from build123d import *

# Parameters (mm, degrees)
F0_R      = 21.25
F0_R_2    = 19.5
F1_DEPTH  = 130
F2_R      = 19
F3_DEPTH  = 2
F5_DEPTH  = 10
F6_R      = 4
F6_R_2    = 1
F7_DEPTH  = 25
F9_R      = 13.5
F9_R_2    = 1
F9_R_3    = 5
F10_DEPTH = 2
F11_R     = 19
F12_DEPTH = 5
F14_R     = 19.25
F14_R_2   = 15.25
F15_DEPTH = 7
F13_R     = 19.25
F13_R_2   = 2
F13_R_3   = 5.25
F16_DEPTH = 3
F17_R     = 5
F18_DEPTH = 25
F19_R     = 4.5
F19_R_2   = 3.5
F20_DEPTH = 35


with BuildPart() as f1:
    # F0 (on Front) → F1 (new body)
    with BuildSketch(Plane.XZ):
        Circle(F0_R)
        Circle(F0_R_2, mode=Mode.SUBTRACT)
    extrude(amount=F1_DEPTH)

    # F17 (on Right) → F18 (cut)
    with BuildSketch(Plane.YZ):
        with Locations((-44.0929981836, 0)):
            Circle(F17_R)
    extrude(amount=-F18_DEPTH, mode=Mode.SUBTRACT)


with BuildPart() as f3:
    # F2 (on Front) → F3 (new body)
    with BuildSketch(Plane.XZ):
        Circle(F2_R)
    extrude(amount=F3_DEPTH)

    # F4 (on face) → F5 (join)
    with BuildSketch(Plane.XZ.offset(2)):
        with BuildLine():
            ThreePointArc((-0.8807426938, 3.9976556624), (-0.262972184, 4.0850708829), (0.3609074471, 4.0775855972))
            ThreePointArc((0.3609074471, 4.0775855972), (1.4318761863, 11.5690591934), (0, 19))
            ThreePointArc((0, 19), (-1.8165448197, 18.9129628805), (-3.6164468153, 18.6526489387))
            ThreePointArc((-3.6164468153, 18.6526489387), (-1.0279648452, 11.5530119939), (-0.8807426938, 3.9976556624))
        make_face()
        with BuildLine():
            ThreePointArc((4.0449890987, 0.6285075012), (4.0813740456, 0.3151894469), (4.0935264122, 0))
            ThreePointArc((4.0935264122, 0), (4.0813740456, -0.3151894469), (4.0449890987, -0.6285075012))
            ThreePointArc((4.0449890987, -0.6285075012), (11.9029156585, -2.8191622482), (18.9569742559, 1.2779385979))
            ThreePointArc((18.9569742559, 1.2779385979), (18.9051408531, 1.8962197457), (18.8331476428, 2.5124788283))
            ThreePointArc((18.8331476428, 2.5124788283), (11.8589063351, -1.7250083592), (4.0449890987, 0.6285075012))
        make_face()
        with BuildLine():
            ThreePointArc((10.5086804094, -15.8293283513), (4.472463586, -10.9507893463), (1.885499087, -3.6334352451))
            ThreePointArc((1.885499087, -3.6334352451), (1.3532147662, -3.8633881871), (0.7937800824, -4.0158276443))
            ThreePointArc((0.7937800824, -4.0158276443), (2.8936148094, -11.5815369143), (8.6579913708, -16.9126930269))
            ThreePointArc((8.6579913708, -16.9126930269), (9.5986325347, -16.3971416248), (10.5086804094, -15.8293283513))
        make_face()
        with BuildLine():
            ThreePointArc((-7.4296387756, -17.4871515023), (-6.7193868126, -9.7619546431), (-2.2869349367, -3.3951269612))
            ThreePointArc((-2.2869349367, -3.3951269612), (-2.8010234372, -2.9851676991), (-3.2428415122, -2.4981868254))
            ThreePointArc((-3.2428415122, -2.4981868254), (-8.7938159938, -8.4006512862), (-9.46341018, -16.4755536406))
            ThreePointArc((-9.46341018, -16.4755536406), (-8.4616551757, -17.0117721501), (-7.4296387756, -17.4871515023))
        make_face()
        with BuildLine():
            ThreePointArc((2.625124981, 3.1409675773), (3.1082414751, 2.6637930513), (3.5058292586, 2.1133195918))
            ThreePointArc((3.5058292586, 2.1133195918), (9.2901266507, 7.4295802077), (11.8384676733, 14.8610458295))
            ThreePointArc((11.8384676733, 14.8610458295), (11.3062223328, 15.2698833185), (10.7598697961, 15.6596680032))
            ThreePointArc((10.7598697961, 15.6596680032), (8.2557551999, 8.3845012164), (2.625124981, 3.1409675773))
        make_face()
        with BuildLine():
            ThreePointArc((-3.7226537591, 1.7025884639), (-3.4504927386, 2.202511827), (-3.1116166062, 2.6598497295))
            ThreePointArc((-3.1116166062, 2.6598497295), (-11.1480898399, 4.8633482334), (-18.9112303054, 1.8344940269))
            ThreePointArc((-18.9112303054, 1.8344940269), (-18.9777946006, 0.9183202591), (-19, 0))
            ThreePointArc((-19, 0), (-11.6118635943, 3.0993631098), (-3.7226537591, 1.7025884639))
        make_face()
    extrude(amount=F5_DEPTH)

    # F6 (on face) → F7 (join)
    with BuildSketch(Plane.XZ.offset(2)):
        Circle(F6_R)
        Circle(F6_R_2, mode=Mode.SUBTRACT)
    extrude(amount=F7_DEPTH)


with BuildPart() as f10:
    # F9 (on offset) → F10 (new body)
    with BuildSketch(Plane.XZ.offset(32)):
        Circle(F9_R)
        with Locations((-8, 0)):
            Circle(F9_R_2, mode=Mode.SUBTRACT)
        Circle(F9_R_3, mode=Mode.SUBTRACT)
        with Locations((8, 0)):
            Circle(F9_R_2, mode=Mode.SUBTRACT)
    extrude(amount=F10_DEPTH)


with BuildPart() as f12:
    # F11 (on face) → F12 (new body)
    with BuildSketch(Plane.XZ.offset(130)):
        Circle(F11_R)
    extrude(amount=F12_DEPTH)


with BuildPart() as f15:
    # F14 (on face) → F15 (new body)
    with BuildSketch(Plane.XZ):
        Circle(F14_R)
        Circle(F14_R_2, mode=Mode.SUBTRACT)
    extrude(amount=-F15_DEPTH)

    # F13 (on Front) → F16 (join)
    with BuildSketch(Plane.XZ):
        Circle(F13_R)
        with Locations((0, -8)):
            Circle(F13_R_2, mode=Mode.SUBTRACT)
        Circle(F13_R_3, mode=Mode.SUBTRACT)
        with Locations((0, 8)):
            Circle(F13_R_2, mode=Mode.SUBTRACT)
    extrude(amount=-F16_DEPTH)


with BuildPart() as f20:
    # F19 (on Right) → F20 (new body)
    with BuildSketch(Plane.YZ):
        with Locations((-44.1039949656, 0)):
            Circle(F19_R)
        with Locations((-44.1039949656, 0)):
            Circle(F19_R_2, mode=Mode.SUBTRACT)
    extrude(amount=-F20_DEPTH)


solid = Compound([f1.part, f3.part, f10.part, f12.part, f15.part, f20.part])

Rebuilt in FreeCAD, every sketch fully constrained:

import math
import FreeCAD as App
import Part
import Sketcher

V = App.Vector
Q = App.Units.Quantity

doc = App.newDocument("Part")
params = doc.addObject("Spreadsheet::Sheet", "Params")
for row, (alias, value) in enumerate([
    ("sketch1_diameter", "39 mm"),
    ("sketch1_diameter2", "42.5 mm"),
    ("pad1_length", "130 mm"),
    ("sketch2_diameter", "10 mm"),
    ("pocket1_length", "25 mm"),
    ("sketch3_diameter", "38 mm"),
    ("pad2_length", "2 mm"),
    ("sketch4_radius", "19 mm"),
    ("pad3_length", "10 mm"),
    ("sketch5_diameter", "8 mm"),
    ("sketch5_diameter2", "2 mm"),
    ("pad4_length", "25 mm"),
    ("sketch6_diameter", "27 mm"),
    ("sketch6_diameter2", "2 mm"),
    ("sketch6_diameter3", "10 mm"),
    ("pad5_length", "2 mm"),
    ("sketch7_diameter", "38 mm"),
    ("pad6_length", "5 mm"),
    ("sketch8_diameter", "38.5 mm"),
    ("sketch8_diameter2", "30.5 mm"),
    ("pad7_length", "7 mm"),
    ("sketch9_diameter", "4 mm"),
    ("sketch9_diameter2", "38.5 mm"),
    ("sketch9_diameter3", "10.5 mm"),
    ("pad8_length", "3 mm"),
    ("sketch10_diameter", "9 mm"),
    ("sketch10_diameter2", "7 mm"),
    ("pad9_length", "35 mm"),
], start=1):
    params.set(f"A{row}", alias)
    params.set(f"B{row}", "=" + value)
    params.setAlias(f"B{row}", alias)

body = doc.addObject("PartDesign::Body", "Body")

sketch1 = body.newObject("Sketcher::SketchObject", "Sketch")
sketch1.AttachmentSupport = (doc.getObject("XZ_Plane"), [""])
sketch1.MapMode = "FlatFace"
sketch1.addGeometry([
    Part.Circle(V(0, 0, 0), V(0, 0, 1), 21),
    Part.Circle(V(0, 0, 0), V(0, 0, 1), 20),
], False)
sketch1.addConstraint([
    Sketcher.Constraint("Coincident", 0, 3, -1, 1),
    Sketcher.Constraint("Coincident", 1, 3, -1, 1),
    Sketcher.Constraint("Diameter", 1, Q("39 mm")),
    Sketcher.Constraint("Diameter", 0, Q("42.5 mm")),
])
sketch1.setExpression("Constraints[2]", "Params.sketch1_diameter")
sketch1.setExpression("Constraints[3]", "Params.sketch1_diameter2")
pad1 = body.newObject("PartDesign::Pad", "Pad")
pad1.Profile = sketch1
pad1.setExpression("Length", "Params.pad1_length")

sketch2 = body.newObject("Sketcher::SketchObject", "Sketch001")
sketch2.AttachmentSupport = (doc.getObject("YZ_Plane"), [""])
sketch2.MapMode = "FlatFace"
sketch2.addGeometry(Part.Circle(V(-44, 0, 0), V(0, 0, 1), 5), False)
sketch2.addConstraint([
    Sketcher.Constraint("PointOnObject", 0, 3, -1),
    Sketcher.Constraint("Diameter", 0, Q("10 mm")),
    Sketcher.Constraint("DistanceX", 0, 3, -1, 1, Q("44.092998 mm")),
])
sketch2.setExpression("Constraints[1]", "Params.sketch2_diameter")
pocket1 = body.newObject("PartDesign::Pocket", "Pocket")
pocket1.Profile = sketch2
pocket1.setExpression("Length", "Params.pocket1_length")
body2 = doc.addObject("PartDesign::Body", "Body001")

sketch3 = body2.newObject("Sketcher::SketchObject", "Sketch002")
sketch3.AttachmentSupport = (doc.getObject("XZ_Plane001"), [""])
sketch3.MapMode = "FlatFace"
sketch3.addGeometry(Part.Circle(V(0, 0, 0), V(0, 0, 1), 19), False)
sketch3.addConstraint([
    Sketcher.Constraint("Coincident", 0, 3, -1, 1),
    Sketcher.Constraint("Diameter", 0, Q("38 mm")),
])
sketch3.setExpression("Constraints[1]", "Params.sketch3_diameter")
pad2 = body2.newObject("PartDesign::Pad", "Pad001")
pad2.Profile = sketch3
pad2.setExpression("Length", "Params.pad2_length")

sketch4 = body2.newObject("Sketcher::SketchObject", "Sketch003")
sketch4.AttachmentSupport = (doc.getObject("XZ_Plane001"), [""])
sketch4.MapMode = "FlatFace"
sketch4.AttachmentOffset = App.Placement(V(0, 0, 2), App.Rotation())
sketch4.addGeometry([
    Part.ArcOfCircle(Part.Circle(V(0, 0, 0), V(0, 0, 1), 4.1), math.radians(84.94), math.radians(102.42)),
    Part.ArcOfCircle(Part.Circle(V(-21.4, 11, 0), V(0, 0, 1), 22.9), math.radians(-18), math.radians(20)),
    Part.ArcOfCircle(Part.Circle(V(0, 0, 0), V(0, 0, 1), 19), math.radians(90), math.radians(100.97)),
    Part.ArcOfCircle(Part.Circle(V(-23.6, 7.3, 0), V(0, 0, 1), 23), math.radians(-8), math.radians(29)),
    Part.ArcOfCircle(Part.Circle(V(0, 0, 0), V(0, 0, 1), 4.1), math.radians(0), math.radians(8.83)),
    Part.ArcOfCircle(Part.Circle(V(0, 0, 0), V(0, 0, 1), 4.1), math.radians(-8.83), math.radians(0)),
    Part.ArcOfCircle(Part.Circle(V(10.6, 7.6, 0), V(0, 0, 1), 10.5), math.radians(-128), math.radians(-37)),
    Part.ArcOfCircle(Part.Circle(V(0, 0, 0), V(0, 0, 1), 19), math.radians(3.86), math.radians(7.6)),
    Part.ArcOfCircle(Part.Circle(V(10.6, 8.2, 0), V(0, 0, 1), 10), math.radians(-131), math.radians(-35)),
    Part.ArcOfCircle(Part.Circle(V(16.1, -2.7, 0), V(0, 0, 1), 14.3), math.radians(-176), math.radians(-113)),
    Part.ArcOfCircle(Part.Circle(V(0, 0, 0), V(0, 0, 1), 4.1), math.radians(-78.82), math.radians(-62.57)),
    Part.ArcOfCircle(Part.Circle(V(15.2, -4.1, 0), V(0, 0, 1), 14.4), math.radians(180), math.radians(243)),
    Part.ArcOfCircle(Part.Circle(V(0, 0, 0), V(0, 0, 1), 19), math.radians(-62.89), math.radians(-56.42)),
    Part.ArcOfCircle(Part.Circle(V(7.5, -15, 0), V(0, 0, 1), 15.2), math.radians(130), math.radians(190)),
    Part.ArcOfCircle(Part.Circle(V(0, 0, 0), V(0, 0, 1), 4.1), math.radians(-142.39), math.radians(-123.96)),
    Part.ArcOfCircle(Part.Circle(V(2.4, -13.4, 0), V(0, 0, 1), 12.3), math.radians(118), math.radians(195)),
    Part.ArcOfCircle(Part.Circle(V(0, 0, 0), V(0, 0, 1), 19), math.radians(-119.87), math.radians(-113.02)),
    Part.ArcOfCircle(Part.Circle(V(0, 0, 0), V(0, 0, 1), 4.1), math.radians(31.08), math.radians(50.11)),
    Part.ArcOfCircle(Part.Circle(V(-4.1, 16.2, 0), V(0, 0, 1), 16), math.radians(-62), math.radians(-5)),
    Part.ArcOfCircle(Part.Circle(V(0, 0, 0), V(0, 0, 1), 19), math.radians(51.46), math.radians(55.51)),
    Part.ArcOfCircle(Part.Circle(V(-5.1, 17, 0), V(0, 0, 1), 15.9), math.radians(-61), math.radians(-5)),
    Part.ArcOfCircle(Part.Circle(V(0, 0, 0), V(0, 0, 1), 4.1), math.radians(139.48), math.radians(155.42)),
    Part.ArcOfCircle(Part.Circle(V(-10.5, -8.4, 0), V(0, 0, 1), 13.3), math.radians(56), math.radians(130)),
    Part.ArcOfCircle(Part.Circle(V(0, 0, 0), V(0, 0, 1), 19), math.radians(174.46), math.radians(180)),
    Part.ArcOfCircle(Part.Circle(V(-10, -11, 0), V(0, 0, 1), 14.2), math.radians(64), math.radians(129)),
], False)
sketch4.addConstraint([
    Sketcher.Constraint("Coincident", 0, 1, 1, 1),
    Sketcher.Constraint("Coincident", 1, 2, 2, 1),
    Sketcher.Constraint("Coincident", 2, 2, 3, 2),
    Sketcher.Constraint("Coincident", 3, 1, 0, 2),
    Sketcher.Constraint("Tangent", 4, 1, 5, 2),
    Sketcher.Constraint("Coincident", 5, 1, 6, 1),
    Sketcher.Constraint("Coincident", 6, 2, 7, 1),
    Sketcher.Constraint("Coincident", 7, 2, 8, 2),
    Sketcher.Constraint("Coincident", 8, 1, 4, 2),
    Sketcher.Constraint("Coincident", 9, 1, 10, 2),
    Sketcher.Constraint("Coincident", 10, 1, 11, 1),
    Sketcher.Constraint("Coincident", 11, 2, 12, 1),
    Sketcher.Constraint("Coincident", 12, 2, 9, 2),
    Sketcher.Constraint("Coincident", 13, 1, 14, 2),
    Sketcher.Constraint("Coincident", 14, 1, 15, 1),
    Sketcher.Constraint("Coincident", 15, 2, 16, 1),
    Sketcher.Constraint("Coincident", 16, 2, 13, 2),
    Sketcher.Constraint("Coincident", 17, 1, 18, 1),
    Sketcher.Constraint("Coincident", 18, 2, 19, 1),
    Sketcher.Constraint("Coincident", 19, 2, 20, 2),
    Sketcher.Constraint("Coincident", 20, 1, 17, 2),
    Sketcher.Constraint("Coincident", 21, 1, 22, 1),
    Sketcher.Constraint("Coincident", 22, 2, 23, 1),
    Sketcher.Constraint("Coincident", 23, 2, 24, 2),
    Sketcher.Constraint("Coincident", 24, 1, 21, 2),
    Sketcher.Constraint("Coincident", 0, 3, -1, 1),
    Sketcher.Constraint("Coincident", 2, 3, -1, 1),
    Sketcher.Constraint("Coincident", 4, 3, -1, 1),
    Sketcher.Constraint("Coincident", 7, 3, -1, 1),
    Sketcher.Constraint("Coincident", 10, 3, -1, 1),
    Sketcher.Constraint("Coincident", 12, 3, -1, 1),
    Sketcher.Constraint("Coincident", 14, 3, -1, 1),
    Sketcher.Constraint("Coincident", 16, 3, -1, 1),
    Sketcher.Constraint("Coincident", 17, 3, -1, 1),
    Sketcher.Constraint("Coincident", 19, 3, -1, 1),
    Sketcher.Constraint("Coincident", 21, 3, -1, 1),
    Sketcher.Constraint("Coincident", 23, 3, -1, 1),
    Sketcher.Constraint("Equal", 0, 4),
    Sketcher.Constraint("Equal", 4, 5),
    Sketcher.Constraint("Equal", 2, 7),
    Sketcher.Constraint("Equal", 5, 10),
    Sketcher.Constraint("Equal", 7, 12),
    Sketcher.Constraint("Equal", 10, 14),
    Sketcher.Constraint("Equal", 12, 16),
    Sketcher.Constraint("Equal", 14, 17),
    Sketcher.Constraint("Equal", 16, 19),
    Sketcher.Constraint("Equal", 17, 21),
    Sketcher.Constraint("Equal", 19, 23),
    Sketcher.Constraint("PointOnObject", 1, 2, -2),
    Sketcher.Constraint("PointOnObject", 4, 1, -1),
    Sketcher.Constraint("PointOnObject", 23, 2, -1),
    Sketcher.Constraint("Vertical", 5, 1, 8, 1),
    Sketcher.Constraint("Radius", 2, Q("19 mm")),
    Sketcher.Constraint("Radius", 3, Q("22.994431 mm")),
    Sketcher.Constraint("Radius", 13, Q("15.18888 mm")),
    Sketcher.Constraint("Radius", 18, Q("15.965249 mm")),
    Sketcher.Constraint("Radius", 20, Q("15.876809 mm")),
    Sketcher.Constraint("Radius", 24, Q("14.188992 mm")),
    Sketcher.Constraint("Radius", 0, Q("4.093526 mm")),
    Sketcher.Constraint("Radius", 1, Q("22.874932 mm")),
    Sketcher.Constraint("Radius", 6, Q("10.497977 mm")),
    Sketcher.Constraint("Radius", 8, Q("10.023118 mm")),
    Sketcher.Constraint("Radius", 9, Q("14.259237 mm")),
    Sketcher.Constraint("Radius", 11, Q("14.363437 mm")),
    Sketcher.Constraint("Radius", 15, Q("12.287617 mm")),
    Sketcher.Constraint("Radius", 22, Q("13.253264 mm")),
    Sketcher.Constraint("DistanceX", -1, 1, 9, 1, Q("1.885499 mm")),
    Sketcher.Constraint("DistanceY", 13, 3, 11, 3, Q("10.8654 mm")),
    Sketcher.Constraint("DistanceX", 22, 3, 24, 3, Q("0.416399 mm")),
    Sketcher.Constraint("DistanceY", 8, 3, 2, 2, Q("10.434901 mm")),
    Sketcher.Constraint("DistanceX", 11, 3, 7, 2, Q("3.676199 mm")),
    Sketcher.Constraint("DistanceY", 10, 1, 13, 1, Q("0.620701 mm")),
    Sketcher.Constraint("DistanceX", 20, 1, 4, 1, Q("1.468401 mm")),
    Sketcher.Constraint("DistanceX", 1, 3, -1, 1, Q("21.436369 mm")),
    Sketcher.Constraint("DistanceX", -1, 1, 6, 3, Q("10.571621 mm")),
    Sketcher.Constraint("DistanceY", -1, 1, 6, 3, Q("7.594059 mm")),
    Sketcher.Constraint("DistanceY", -1, 1, 8, 3, Q("8.217748 mm")),
    Sketcher.Constraint("DistanceX", -1, 1, 9, 3, Q("16.11536 mm")),
    Sketcher.Constraint("DistanceY", 11, 3, -1, 1, Q("4.103638 mm")),
    Sketcher.Constraint("DistanceX", 18, 3, -1, 1, Q("4.07346 mm")),
    Sketcher.Constraint("DistanceY", -1, 1, 18, 3, Q("16.16478 mm")),
    Sketcher.Constraint("DistanceY", 22, 3, -1, 1, Q("8.371869 mm")),
    Sketcher.Constraint("DistanceX", 14, 1, -1, 1, Q("3.242842 mm")),
    Sketcher.Constraint("DistanceX", 15, 2, -1, 1, Q("9.46341 mm")),
    Sketcher.Constraint("DistanceX", -1, 1, 19, 2, Q("10.75987 mm")),
    Sketcher.Constraint("DistanceY", -1, 1, 21, 1, Q("2.65985 mm")),
    Sketcher.Constraint("DistanceX", 3, 3, 1, 3, Q("2.195558 mm")),
])
sketch4.setExpression("Constraints[52]", "Params.sketch4_radius")
pad3 = body2.newObject("PartDesign::Pad", "Pad002")
pad3.Profile = sketch4
pad3.setExpression("Length", "Params.pad3_length")

sketch5 = body2.newObject("Sketcher::SketchObject", "Sketch004")
sketch5.AttachmentSupport = (doc.getObject("XZ_Plane001"), [""])
sketch5.MapMode = "FlatFace"
sketch5.AttachmentOffset = App.Placement(V(0, 0, 2), App.Rotation())
sketch5.addGeometry([
    Part.Circle(V(0, 0, 0), V(0, 0, 1), 4),
    Part.Circle(V(0, 0, 0), V(0, 0, 1), 1),
], False)
sketch5.addConstraint([
    Sketcher.Constraint("Coincident", 0, 3, -1, 1),
    Sketcher.Constraint("Coincident", 1, 3, -1, 1),
    Sketcher.Constraint("Diameter", 0, Q("8 mm")),
    Sketcher.Constraint("Diameter", 1, Q("2 mm")),
])
sketch5.setExpression("Constraints[2]", "Params.sketch5_diameter")
sketch5.setExpression("Constraints[3]", "Params.sketch5_diameter2")
pad4 = body2.newObject("PartDesign::Pad", "Pad003")
pad4.Profile = sketch5
pad4.setExpression("Length", "Params.pad4_length")
body3 = doc.addObject("PartDesign::Body", "Body002")

sketch6 = body3.newObject("Sketcher::SketchObject", "Sketch005")
sketch6.AttachmentSupport = (doc.getObject("XZ_Plane002"), [""])
sketch6.MapMode = "FlatFace"
sketch6.AttachmentOffset = App.Placement(V(0, 0, 32), App.Rotation())
sketch6.addGeometry([
    Part.Circle(V(0, 0, 0), V(0, 0, 1), 13.5),
    Part.Circle(V(-8, 0, 0), V(0, 0, 1), 1),
    Part.Circle(V(0, 0, 0), V(0, 0, 1), 5),
    Part.Circle(V(8, 0, 0), V(0, 0, 1), 1),
], False)
sketch6.addConstraint([
    Sketcher.Constraint("Coincident", 0, 3, -1, 1),
    Sketcher.Constraint("Coincident", 2, 3, -1, 1),
    Sketcher.Constraint("Equal", 1, 3),
    Sketcher.Constraint("Symmetric", 1, 3, 3, 3, -1, 1),
    Sketcher.Constraint("PointOnObject", 1, 3, -1),
    Sketcher.Constraint("Diameter", 0, Q("27 mm")),
    Sketcher.Constraint("Diameter", 1, Q("2 mm")),
    Sketcher.Constraint("Diameter", 2, Q("10 mm")),
    Sketcher.Constraint("DistanceX", 1, 3, -1, 1, Q("8 mm")),
])
sketch6.setExpression("Constraints[5]", "Params.sketch6_diameter")
sketch6.setExpression("Constraints[6]", "Params.sketch6_diameter2")
sketch6.setExpression("Constraints[7]", "Params.sketch6_diameter3")
pad5 = body3.newObject("PartDesign::Pad", "Pad004")
pad5.Profile = sketch6
pad5.setExpression("Length", "Params.pad5_length")
body4 = doc.addObject("PartDesign::Body", "Body003")

sketch7 = body4.newObject("Sketcher::SketchObject", "Sketch006")
sketch7.AttachmentSupport = (doc.getObject("XZ_Plane003"), [""])
sketch7.MapMode = "FlatFace"
sketch7.AttachmentOffset = App.Placement(V(0, 0, 130), App.Rotation())
sketch7.addGeometry(Part.Circle(V(0, 0, 0), V(0, 0, 1), 19), False)
sketch7.addConstraint([
    Sketcher.Constraint("Coincident", 0, 3, -1, 1),
    Sketcher.Constraint("Diameter", 0, Q("38 mm")),
])
sketch7.setExpression("Constraints[1]", "Params.sketch7_diameter")
pad6 = body4.newObject("PartDesign::Pad", "Pad005")
pad6.Profile = sketch7
pad6.setExpression("Length", "Params.pad6_length")
body5 = doc.addObject("PartDesign::Body", "Body004")

sketch8 = body5.newObject("Sketcher::SketchObject", "Sketch007")
sketch8.AttachmentSupport = (doc.getObject("XZ_Plane004"), [""])
sketch8.MapMode = "FlatFace"
sketch8.addGeometry([
    Part.Circle(V(0, 0, 0), V(0, 0, 1), 19),
    Part.Circle(V(0, 0, 0), V(0, 0, 1), 15),
], False)
sketch8.addConstraint([
    Sketcher.Constraint("Coincident", 0, 3, -1, 1),
    Sketcher.Constraint("Coincident", 1, 3, -1, 1),
    Sketcher.Constraint("Diameter", 0, Q("38.5 mm")),
    Sketcher.Constraint("Diameter", 1, Q("30.5 mm")),
])
sketch8.setExpression("Constraints[2]", "Params.sketch8_diameter")
sketch8.setExpression("Constraints[3]", "Params.sketch8_diameter2")
pad7 = body5.newObject("PartDesign::Pad", "Pad006")
pad7.Profile = sketch8
pad7.setExpression("Length", "Params.pad7_length")
pad7.Reversed = True

sketch9 = body5.newObject("Sketcher::SketchObject", "Sketch008")
sketch9.AttachmentSupport = (doc.getObject("XZ_Plane004"), [""])
sketch9.MapMode = "FlatFace"
sketch9.addGeometry([
    Part.Circle(V(0, 0, 0), V(0, 0, 1), 19.2),
    Part.Circle(V(0, -8, 0), V(0, 0, 1), 2),
    Part.Circle(V(0, 0, 0), V(0, 0, 1), 5.2),
    Part.Circle(V(0, 8, 0), V(0, 0, 1), 2),
], False)
sketch9.addConstraint([
    Sketcher.Constraint("Coincident", 0, 3, -1, 1),
    Sketcher.Constraint("Coincident", 2, 3, -1, 1),
    Sketcher.Constraint("Equal", 1, 3),
    Sketcher.Constraint("Symmetric", 1, 3, 3, 3, -1, 1),
    Sketcher.Constraint("PointOnObject", 1, 3, -2),
    Sketcher.Constraint("Diameter", 1, Q("4 mm")),
    Sketcher.Constraint("Diameter", 0, Q("38.5 mm")),
    Sketcher.Constraint("Diameter", 2, Q("10.5 mm")),
    Sketcher.Constraint("DistanceY", 1, 3, -1, 1, Q("8 mm")),
])
sketch9.setExpression("Constraints[5]", "Params.sketch9_diameter")
sketch9.setExpression("Constraints[6]", "Params.sketch9_diameter2")
sketch9.setExpression("Constraints[7]", "Params.sketch9_diameter3")
pad8 = body5.newObject("PartDesign::Pad", "Pad007")
pad8.Profile = sketch9
pad8.setExpression("Length", "Params.pad8_length")
pad8.Reversed = True
body6 = doc.addObject("PartDesign::Body", "Body005")

sketch10 = body6.newObject("Sketcher::SketchObject", "Sketch009")
sketch10.AttachmentSupport = (doc.getObject("YZ_Plane005"), [""])
sketch10.MapMode = "FlatFace"
sketch10.addGeometry([
    Part.Circle(V(-44.1, 0, 0), V(0, 0, 1), 4.5),
    Part.Circle(V(-44.1, 0, 0), V(0, 0, 1), 3.5),
], False)
sketch10.addConstraint([
    Sketcher.Constraint("Coincident", 1, 3, 0, 3),
    Sketcher.Constraint("PointOnObject", 0, 3, -1),
    Sketcher.Constraint("Diameter", 0, Q("9 mm")),
    Sketcher.Constraint("Diameter", 1, Q("7 mm")),
    Sketcher.Constraint("DistanceX", 0, 3, -1, 1, Q("44.103995 mm")),
])
sketch10.setExpression("Constraints[2]", "Params.sketch10_diameter")
sketch10.setExpression("Constraints[3]", "Params.sketch10_diameter2")
pad9 = body6.newObject("PartDesign::Pad", "Pad008")
pad9.Profile = sketch10
pad9.setExpression("Length", "Params.pad9_length")
pad9.Reversed = True

doc.recompute()
